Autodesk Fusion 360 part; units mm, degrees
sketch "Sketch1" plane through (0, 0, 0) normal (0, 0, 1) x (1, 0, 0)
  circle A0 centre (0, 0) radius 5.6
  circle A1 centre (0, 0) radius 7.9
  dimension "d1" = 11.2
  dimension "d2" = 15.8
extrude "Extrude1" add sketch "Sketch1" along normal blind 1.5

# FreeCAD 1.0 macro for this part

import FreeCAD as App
import Part
import Sketcher
from FreeCAD import Vector

doc = App.newDocument("Part")
body = doc.addObject("PartDesign::Body", "Body")

sketch1 = doc.addObject("Sketcher::SketchObject", "Sketch")
body.addObject(sketch1)
sketch1.AttachmentSupport = (doc.XY_Plane, [""])
sketch1.MapMode = "FlatFace"
sketch1.addGeometry([
    Part.Circle(Vector(0, 0, 0), Vector(0, 0, 1), 8),
    Part.Circle(Vector(0, 0, 0), Vector(0, 0, 1), 6),
], False)
sketch1.addConstraint([
    Sketcher.Constraint("Coincident", 0, 3, -1, 1),
    Sketcher.Constraint("Coincident", 1, 3, -1, 1),
    Sketcher.Constraint("Diameter", 0, 15.8),
    Sketcher.Constraint("Diameter", 1, 11.2),
])
pad1 = doc.addObject("PartDesign::Pad", "Pad")
body.addObject(pad1)
pad1.Profile = sketch1
pad1.Length = 1.5

doc.recompute()
